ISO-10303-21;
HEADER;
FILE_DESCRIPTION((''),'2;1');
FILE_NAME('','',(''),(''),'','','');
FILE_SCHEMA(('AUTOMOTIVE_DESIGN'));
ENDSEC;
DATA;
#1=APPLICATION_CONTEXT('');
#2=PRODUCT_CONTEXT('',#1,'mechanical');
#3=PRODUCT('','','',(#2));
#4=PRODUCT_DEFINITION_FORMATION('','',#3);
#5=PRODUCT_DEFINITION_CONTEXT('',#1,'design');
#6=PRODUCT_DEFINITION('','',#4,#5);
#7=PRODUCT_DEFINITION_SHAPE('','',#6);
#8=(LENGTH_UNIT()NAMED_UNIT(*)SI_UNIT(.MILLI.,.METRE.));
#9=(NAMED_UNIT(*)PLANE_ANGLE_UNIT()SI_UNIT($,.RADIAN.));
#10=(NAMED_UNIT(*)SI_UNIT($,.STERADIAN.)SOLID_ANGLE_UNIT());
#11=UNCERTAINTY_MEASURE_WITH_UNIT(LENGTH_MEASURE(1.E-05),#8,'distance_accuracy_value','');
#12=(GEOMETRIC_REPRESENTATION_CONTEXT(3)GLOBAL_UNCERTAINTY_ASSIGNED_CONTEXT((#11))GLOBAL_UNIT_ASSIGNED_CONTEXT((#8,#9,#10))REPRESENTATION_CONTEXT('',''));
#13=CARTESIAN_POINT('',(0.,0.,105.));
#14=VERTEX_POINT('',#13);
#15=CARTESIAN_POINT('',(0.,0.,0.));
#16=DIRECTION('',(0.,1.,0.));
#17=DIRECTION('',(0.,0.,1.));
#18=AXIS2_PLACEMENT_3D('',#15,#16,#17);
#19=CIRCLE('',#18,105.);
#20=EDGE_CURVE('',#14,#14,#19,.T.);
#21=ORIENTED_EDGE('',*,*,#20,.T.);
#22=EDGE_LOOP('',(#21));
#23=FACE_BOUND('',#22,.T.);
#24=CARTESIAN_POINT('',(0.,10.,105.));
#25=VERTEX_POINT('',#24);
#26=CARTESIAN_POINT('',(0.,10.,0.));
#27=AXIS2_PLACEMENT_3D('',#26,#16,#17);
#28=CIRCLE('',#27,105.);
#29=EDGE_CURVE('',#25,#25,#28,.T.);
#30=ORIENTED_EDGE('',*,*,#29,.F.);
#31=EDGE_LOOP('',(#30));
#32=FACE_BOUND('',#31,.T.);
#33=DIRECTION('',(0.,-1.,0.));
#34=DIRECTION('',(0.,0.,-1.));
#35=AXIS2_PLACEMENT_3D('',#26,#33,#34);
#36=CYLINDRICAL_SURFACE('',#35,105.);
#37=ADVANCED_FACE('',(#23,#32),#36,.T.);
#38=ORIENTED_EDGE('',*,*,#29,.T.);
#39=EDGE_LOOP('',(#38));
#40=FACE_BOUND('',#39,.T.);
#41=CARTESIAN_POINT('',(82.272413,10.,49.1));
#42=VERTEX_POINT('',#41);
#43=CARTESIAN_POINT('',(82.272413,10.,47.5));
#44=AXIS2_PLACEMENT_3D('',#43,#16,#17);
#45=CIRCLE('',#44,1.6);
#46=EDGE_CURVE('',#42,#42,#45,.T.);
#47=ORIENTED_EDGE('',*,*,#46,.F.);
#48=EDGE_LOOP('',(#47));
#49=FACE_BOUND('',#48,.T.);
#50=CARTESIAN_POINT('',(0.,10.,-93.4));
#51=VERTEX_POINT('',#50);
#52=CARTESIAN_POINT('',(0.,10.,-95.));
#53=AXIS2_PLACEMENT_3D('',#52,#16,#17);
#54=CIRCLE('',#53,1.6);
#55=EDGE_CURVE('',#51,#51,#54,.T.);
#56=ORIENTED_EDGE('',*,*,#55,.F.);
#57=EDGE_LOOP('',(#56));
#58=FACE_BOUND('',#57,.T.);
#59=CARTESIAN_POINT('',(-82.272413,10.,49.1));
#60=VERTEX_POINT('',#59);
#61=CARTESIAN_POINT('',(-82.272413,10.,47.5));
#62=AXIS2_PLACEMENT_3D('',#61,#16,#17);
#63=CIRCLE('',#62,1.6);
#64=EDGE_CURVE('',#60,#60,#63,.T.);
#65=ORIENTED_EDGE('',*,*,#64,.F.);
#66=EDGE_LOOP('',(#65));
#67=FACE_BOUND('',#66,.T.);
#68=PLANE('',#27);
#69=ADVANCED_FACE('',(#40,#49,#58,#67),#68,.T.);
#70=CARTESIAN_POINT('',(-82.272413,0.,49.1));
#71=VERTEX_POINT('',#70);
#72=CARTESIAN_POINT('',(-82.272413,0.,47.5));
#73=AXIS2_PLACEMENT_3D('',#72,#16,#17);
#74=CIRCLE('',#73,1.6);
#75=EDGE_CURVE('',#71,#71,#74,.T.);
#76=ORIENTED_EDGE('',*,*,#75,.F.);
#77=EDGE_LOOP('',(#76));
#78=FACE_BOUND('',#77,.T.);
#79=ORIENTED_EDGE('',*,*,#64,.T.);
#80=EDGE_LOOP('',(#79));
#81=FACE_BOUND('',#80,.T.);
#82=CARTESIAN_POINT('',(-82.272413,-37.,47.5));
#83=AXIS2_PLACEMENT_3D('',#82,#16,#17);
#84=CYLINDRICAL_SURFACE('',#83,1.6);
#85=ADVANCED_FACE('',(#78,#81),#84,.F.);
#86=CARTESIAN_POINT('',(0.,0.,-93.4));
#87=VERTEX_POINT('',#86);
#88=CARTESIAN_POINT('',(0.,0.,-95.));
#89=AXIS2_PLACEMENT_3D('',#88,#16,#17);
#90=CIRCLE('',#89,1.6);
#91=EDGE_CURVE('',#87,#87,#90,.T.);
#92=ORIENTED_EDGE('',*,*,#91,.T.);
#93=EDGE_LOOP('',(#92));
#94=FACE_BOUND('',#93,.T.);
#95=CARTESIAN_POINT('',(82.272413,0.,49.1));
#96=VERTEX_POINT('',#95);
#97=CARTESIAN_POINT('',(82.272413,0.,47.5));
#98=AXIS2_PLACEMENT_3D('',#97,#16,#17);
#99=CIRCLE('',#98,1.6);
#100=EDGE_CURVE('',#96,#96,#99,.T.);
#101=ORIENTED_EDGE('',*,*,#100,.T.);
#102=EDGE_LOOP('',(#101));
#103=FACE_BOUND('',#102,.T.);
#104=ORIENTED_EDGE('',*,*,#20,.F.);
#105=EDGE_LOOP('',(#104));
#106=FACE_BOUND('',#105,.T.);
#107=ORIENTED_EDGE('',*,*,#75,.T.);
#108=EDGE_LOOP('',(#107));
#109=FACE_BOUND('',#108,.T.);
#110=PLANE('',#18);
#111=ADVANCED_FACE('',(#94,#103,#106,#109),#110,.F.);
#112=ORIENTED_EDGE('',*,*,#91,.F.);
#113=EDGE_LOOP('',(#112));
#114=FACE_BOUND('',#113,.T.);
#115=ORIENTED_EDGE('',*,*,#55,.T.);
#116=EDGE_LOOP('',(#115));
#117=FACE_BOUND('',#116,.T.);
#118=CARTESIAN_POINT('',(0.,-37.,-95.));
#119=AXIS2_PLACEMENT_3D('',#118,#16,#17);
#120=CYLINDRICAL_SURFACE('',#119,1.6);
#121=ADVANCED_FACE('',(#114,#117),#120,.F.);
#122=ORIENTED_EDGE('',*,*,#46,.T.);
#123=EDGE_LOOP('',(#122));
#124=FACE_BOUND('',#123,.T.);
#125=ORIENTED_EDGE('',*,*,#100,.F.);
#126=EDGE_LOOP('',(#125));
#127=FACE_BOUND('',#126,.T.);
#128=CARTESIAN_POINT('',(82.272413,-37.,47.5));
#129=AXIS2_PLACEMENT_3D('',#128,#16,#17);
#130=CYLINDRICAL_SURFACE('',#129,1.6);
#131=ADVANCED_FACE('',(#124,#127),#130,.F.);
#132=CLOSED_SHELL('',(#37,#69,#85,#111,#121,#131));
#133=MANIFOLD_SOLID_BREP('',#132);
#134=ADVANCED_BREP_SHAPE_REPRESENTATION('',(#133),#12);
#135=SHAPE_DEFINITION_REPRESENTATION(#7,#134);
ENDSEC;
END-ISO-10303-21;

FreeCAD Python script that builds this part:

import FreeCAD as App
import Part
import Sketcher

doc = App.newDocument("Part")
params = doc.addObject("Spreadsheet::Sheet", "Params")
for row, (alias, value) in enumerate([
    ("sketch1_diameter", "210 mm"),
    ("pad1_length", "10 mm"),
    ("sketch2_diameter", "3.2 mm"),
    ("pocket1_length", "47 mm"),
], start=1):
    params.set(f"A{row}", alias)
    params.set(f"B{row}", "=" + value)
    params.setAlias(f"B{row}", alias)

body = doc.addObject("PartDesign::Body", "Body")

# Sketch on XZ plane
sketch1 = doc.addObject("Sketcher::SketchObject", "Sketch")
body.addObject(sketch1)
sketch1.AttachmentSupport = (doc.XZ_Plane, [""])
sketch1.MapMode = "FlatFace"
sketch1.addGeometry(Part.Circle(App.Vector(0, 0, 0), App.Vector(0, 0, 1), 105), False)
sketch1.addConstraint([
    Sketcher.Constraint("Coincident", 0, 3, -1, 1),
    Sketcher.Constraint("Diameter", 0, 210.0),
])
sketch1.setExpression("Constraints[1]", "Params.sketch1_diameter")
pad1 = doc.addObject("PartDesign::Pad", "Pad")
body.addObject(pad1)
pad1.Profile = sketch1
pad1.setExpression("Length", "Params.pad1_length")
pad1.Reversed = True

# Sketch on XZ plane
sketch2 = doc.addObject("Sketcher::SketchObject", "Sketch001")
body.addObject(sketch2)
sketch2.AttachmentSupport = (doc.XZ_Plane, [""])
sketch2.MapMode = "FlatFace"
sketch2.AttachmentOffset = App.Placement(App.Vector(0, 0, -10), App.Rotation())
sketch2.addGeometry([
    Part.Circle(App.Vector(-82.3, 47.5, 0), App.Vector(0, 0, 1), 1.6),
    Part.Circle(App.Vector(0, -95, 0), App.Vector(0, 0, 1), 1.6),
    Part.Circle(App.Vector(82.3, 47.5, 0), App.Vector(0, 0, 1), 1.6),
], False)
sketch2.addConstraint([
    Sketcher.Constraint("Equal", 0, 1),
    Sketcher.Constraint("Equal", 1, 2),
    Sketcher.Constraint("Symmetric", 0, 3, 2, 3, -2),
    Sketcher.Constraint("PointOnObject", 1, 3, -2),
    Sketcher.Constraint("Diameter", 0, 3.2),
    Sketcher.Constraint("DistanceY", 1, 3, -1, 1, 95.0),
    Sketcher.Constraint("DistanceY", -1, 1, 0, 3, 47.5),
    Sketcher.Constraint("DistanceX", 0, 3, -1, 1, 82.272413),
])
sketch2.setExpression("Constraints[4]", "Params.sketch2_diameter")
pocket1 = doc.addObject("PartDesign::Pocket", "Pocket")
body.addObject(pocket1)
pocket1.Profile = sketch2
pocket1.setExpression("Length", "Params.pocket1_length")
pocket1.Reversed = True

doc.recompute()
